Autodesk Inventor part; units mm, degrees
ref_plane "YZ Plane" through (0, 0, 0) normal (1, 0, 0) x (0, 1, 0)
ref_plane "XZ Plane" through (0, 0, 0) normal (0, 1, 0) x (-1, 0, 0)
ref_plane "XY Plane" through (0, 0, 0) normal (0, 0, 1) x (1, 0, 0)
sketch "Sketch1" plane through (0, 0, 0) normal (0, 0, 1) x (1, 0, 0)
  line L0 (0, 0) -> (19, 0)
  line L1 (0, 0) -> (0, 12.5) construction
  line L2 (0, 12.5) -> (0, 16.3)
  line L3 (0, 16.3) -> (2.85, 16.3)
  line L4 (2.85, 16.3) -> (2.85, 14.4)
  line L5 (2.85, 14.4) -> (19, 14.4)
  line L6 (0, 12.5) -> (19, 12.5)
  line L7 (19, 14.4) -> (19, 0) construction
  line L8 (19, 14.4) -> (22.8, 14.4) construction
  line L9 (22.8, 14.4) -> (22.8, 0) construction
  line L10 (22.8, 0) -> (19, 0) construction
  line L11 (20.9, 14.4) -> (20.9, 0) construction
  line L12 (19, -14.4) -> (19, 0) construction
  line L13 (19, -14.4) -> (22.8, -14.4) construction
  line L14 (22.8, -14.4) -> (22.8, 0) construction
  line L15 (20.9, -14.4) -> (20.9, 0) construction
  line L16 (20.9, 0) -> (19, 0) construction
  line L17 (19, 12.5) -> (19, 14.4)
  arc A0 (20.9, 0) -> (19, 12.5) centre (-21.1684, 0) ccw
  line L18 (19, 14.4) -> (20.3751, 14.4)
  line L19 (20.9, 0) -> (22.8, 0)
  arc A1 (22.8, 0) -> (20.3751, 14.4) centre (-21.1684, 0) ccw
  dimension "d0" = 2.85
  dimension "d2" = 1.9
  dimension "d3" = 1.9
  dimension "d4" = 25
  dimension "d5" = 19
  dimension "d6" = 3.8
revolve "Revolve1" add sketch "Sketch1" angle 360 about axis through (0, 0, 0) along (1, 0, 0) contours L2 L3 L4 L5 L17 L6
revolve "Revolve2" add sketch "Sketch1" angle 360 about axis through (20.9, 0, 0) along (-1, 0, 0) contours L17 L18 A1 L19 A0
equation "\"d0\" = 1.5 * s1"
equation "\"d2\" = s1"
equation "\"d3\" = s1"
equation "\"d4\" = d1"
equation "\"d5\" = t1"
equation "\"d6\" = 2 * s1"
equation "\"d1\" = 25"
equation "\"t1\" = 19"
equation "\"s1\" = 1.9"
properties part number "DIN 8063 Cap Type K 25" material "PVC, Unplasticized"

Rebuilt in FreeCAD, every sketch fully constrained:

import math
import FreeCAD as App
import Part
import Sketcher

doc = App.newDocument("Part")
body = doc.addObject("PartDesign::Body", "Body")

sketch1 = doc.addObject("Sketcher::SketchObject", "Sketch")
body.addObject(sketch1)
sketch1.AttachmentSupport = (doc.XY_Plane, [""])
sketch1.MapMode = "FlatFace"
sketch1.addGeometry(Part.LineSegment(App.Vector(0, 16.3, 0), App.Vector(0, 12.5, 0)), False)
sketch1.addGeometry(Part.LineSegment(App.Vector(0, 12.5, 0), App.Vector(19, 12.5, 0)), False)
sketch1.addGeometry(Part.LineSegment(App.Vector(19, 12.5, 0), App.Vector(19, 14.4, 0)), False)
sketch1.addGeometry(Part.LineSegment(App.Vector(19, 14.4, 0), App.Vector(2.9, 14.4, 0)), False)
sketch1.addGeometry(Part.LineSegment(App.Vector(2.9, 14.4, 0), App.Vector(2.9, 16.3, 0)), False)
sketch1.addGeometry(Part.LineSegment(App.Vector(2.9, 16.3, 0), App.Vector(0, 16.3, 0)), False)
sketch1.addConstraint(Sketcher.Constraint("Coincident", 0, 2, 1, 1))
sketch1.addConstraint(Sketcher.Constraint("Coincident", 1, 2, 2, 1))
sketch1.addConstraint(Sketcher.Constraint("Coincident", 2, 2, 3, 1))
sketch1.addConstraint(Sketcher.Constraint("Coincident", 3, 2, 4, 1))
sketch1.addConstraint(Sketcher.Constraint("Coincident", 4, 2, 5, 1))
sketch1.addConstraint(Sketcher.Constraint("Coincident", 5, 2, 0, 1))
sketch1.addConstraint(Sketcher.Constraint("Vertical", 0))
sketch1.addConstraint(Sketcher.Constraint("Horizontal", 1))
sketch1.addConstraint(Sketcher.Constraint("Vertical", 2))
sketch1.addConstraint(Sketcher.Constraint("Horizontal", 3))
sketch1.addConstraint(Sketcher.Constraint("Vertical", 4))
sketch1.addConstraint(Sketcher.Constraint("Horizontal", 5))
sketch1.addConstraint(Sketcher.Constraint("PointOnObject", 0, 2, -2))
sketch1.addConstraint(Sketcher.Constraint("Equal", 2, 4))
sketch1.addConstraint(Sketcher.Constraint("DistanceX", 1, 1, 1, 2, 19.0))
sketch1.addConstraint(Sketcher.Constraint("DistanceY", 0, 2, 0, 1, 3.8))
sketch1.addConstraint(Sketcher.Constraint("DistanceX", 5, 2, 5, 1, 2.85))
sketch1.addConstraint(Sketcher.Constraint("DistanceY", -1, 1, 0, 2, 12.5))
revolution = doc.addObject("PartDesign::Revolution", "Revolution")
body.addObject(revolution)
revolution.Profile = sketch1
revolution.ReferenceAxis = (sketch1, ["H_Axis"])
revolution.Angle = 360

sketch2 = doc.addObject("Sketcher::SketchObject", "Sketch001")
body.addObject(sketch2)
sketch2.AttachmentSupport = (doc.XY_Plane, [""])
sketch2.MapMode = "FlatFace"
sketch2.addGeometry(Part.LineSegment(App.Vector(19, 14.4, 0), App.Vector(19, 12.5, 0)), False)
sketch2.addGeometry(Part.ArcOfCircle(Part.Circle(App.Vector(-21.2, 0, 0), App.Vector(0, 0, 1), 42.1), math.radians(0), math.radians(17.29)), False)
sketch2.addGeometry(Part.LineSegment(App.Vector(20.9, 0, 0), App.Vector(22.8, 0, 0)), False)
sketch2.addGeometry(Part.ArcOfCircle(Part.Circle(App.Vector(-21.2, 0, 0), App.Vector(0, 0, 1), 44), math.radians(0), math.radians(19.12)), False)
sketch2.addGeometry(Part.LineSegment(App.Vector(20.4, 14.4, 0), App.Vector(19, 14.4, 0)), False)
sketch2.addConstraint(Sketcher.Constraint("Coincident", 0, 2, 1, 2))
sketch2.addConstraint(Sketcher.Constraint("Coincident", 1, 1, 2, 1))
sketch2.addConstraint(Sketcher.Constraint("Coincident", 2, 2, 3, 1))
sketch2.addConstraint(Sketcher.Constraint("Coincident", 3, 2, 4, 1))
sketch2.addConstraint(Sketcher.Constraint("Coincident", 4, 2, 0, 1))
sketch2.addConstraint(Sketcher.Constraint("Vertical", 0))
sketch2.addConstraint(Sketcher.Constraint("Horizontal", 2))
sketch2.addConstraint(Sketcher.Constraint("Horizontal", 4))
sketch2.addConstraint(Sketcher.Constraint("Coincident", 3, 3, 1, 3))
sketch2.addConstraint(Sketcher.Constraint("PointOnObject", 1, 3, -1))
sketch2.addConstraint(Sketcher.Constraint("PointOnObject", 1, 1, -1))
sketch2.addConstraint(Sketcher.Constraint("Equal", 2, 0))
sketch2.addConstraint(Sketcher.Constraint("DistanceX", 2, 1, 2, 2, 1.9))
sketch2.addConstraint(Sketcher.Constraint("DistanceX", -1, 1, 0, 2, 19.0))
sketch2.addConstraint(Sketcher.Constraint("DistanceX", 0, 2, 1, 1, 1.9))
sketch2.addConstraint(Sketcher.Constraint("DistanceY", -1, 1, 0, 2, 12.5))
revolution2 = doc.addObject("PartDesign::Revolution", "Revolution001")
body.addObject(revolution2)
revolution2.Profile = sketch2
revolution2.ReferenceAxis = (sketch2, ["H_Axis"])
revolution2.Angle = 360

doc.recompute()
